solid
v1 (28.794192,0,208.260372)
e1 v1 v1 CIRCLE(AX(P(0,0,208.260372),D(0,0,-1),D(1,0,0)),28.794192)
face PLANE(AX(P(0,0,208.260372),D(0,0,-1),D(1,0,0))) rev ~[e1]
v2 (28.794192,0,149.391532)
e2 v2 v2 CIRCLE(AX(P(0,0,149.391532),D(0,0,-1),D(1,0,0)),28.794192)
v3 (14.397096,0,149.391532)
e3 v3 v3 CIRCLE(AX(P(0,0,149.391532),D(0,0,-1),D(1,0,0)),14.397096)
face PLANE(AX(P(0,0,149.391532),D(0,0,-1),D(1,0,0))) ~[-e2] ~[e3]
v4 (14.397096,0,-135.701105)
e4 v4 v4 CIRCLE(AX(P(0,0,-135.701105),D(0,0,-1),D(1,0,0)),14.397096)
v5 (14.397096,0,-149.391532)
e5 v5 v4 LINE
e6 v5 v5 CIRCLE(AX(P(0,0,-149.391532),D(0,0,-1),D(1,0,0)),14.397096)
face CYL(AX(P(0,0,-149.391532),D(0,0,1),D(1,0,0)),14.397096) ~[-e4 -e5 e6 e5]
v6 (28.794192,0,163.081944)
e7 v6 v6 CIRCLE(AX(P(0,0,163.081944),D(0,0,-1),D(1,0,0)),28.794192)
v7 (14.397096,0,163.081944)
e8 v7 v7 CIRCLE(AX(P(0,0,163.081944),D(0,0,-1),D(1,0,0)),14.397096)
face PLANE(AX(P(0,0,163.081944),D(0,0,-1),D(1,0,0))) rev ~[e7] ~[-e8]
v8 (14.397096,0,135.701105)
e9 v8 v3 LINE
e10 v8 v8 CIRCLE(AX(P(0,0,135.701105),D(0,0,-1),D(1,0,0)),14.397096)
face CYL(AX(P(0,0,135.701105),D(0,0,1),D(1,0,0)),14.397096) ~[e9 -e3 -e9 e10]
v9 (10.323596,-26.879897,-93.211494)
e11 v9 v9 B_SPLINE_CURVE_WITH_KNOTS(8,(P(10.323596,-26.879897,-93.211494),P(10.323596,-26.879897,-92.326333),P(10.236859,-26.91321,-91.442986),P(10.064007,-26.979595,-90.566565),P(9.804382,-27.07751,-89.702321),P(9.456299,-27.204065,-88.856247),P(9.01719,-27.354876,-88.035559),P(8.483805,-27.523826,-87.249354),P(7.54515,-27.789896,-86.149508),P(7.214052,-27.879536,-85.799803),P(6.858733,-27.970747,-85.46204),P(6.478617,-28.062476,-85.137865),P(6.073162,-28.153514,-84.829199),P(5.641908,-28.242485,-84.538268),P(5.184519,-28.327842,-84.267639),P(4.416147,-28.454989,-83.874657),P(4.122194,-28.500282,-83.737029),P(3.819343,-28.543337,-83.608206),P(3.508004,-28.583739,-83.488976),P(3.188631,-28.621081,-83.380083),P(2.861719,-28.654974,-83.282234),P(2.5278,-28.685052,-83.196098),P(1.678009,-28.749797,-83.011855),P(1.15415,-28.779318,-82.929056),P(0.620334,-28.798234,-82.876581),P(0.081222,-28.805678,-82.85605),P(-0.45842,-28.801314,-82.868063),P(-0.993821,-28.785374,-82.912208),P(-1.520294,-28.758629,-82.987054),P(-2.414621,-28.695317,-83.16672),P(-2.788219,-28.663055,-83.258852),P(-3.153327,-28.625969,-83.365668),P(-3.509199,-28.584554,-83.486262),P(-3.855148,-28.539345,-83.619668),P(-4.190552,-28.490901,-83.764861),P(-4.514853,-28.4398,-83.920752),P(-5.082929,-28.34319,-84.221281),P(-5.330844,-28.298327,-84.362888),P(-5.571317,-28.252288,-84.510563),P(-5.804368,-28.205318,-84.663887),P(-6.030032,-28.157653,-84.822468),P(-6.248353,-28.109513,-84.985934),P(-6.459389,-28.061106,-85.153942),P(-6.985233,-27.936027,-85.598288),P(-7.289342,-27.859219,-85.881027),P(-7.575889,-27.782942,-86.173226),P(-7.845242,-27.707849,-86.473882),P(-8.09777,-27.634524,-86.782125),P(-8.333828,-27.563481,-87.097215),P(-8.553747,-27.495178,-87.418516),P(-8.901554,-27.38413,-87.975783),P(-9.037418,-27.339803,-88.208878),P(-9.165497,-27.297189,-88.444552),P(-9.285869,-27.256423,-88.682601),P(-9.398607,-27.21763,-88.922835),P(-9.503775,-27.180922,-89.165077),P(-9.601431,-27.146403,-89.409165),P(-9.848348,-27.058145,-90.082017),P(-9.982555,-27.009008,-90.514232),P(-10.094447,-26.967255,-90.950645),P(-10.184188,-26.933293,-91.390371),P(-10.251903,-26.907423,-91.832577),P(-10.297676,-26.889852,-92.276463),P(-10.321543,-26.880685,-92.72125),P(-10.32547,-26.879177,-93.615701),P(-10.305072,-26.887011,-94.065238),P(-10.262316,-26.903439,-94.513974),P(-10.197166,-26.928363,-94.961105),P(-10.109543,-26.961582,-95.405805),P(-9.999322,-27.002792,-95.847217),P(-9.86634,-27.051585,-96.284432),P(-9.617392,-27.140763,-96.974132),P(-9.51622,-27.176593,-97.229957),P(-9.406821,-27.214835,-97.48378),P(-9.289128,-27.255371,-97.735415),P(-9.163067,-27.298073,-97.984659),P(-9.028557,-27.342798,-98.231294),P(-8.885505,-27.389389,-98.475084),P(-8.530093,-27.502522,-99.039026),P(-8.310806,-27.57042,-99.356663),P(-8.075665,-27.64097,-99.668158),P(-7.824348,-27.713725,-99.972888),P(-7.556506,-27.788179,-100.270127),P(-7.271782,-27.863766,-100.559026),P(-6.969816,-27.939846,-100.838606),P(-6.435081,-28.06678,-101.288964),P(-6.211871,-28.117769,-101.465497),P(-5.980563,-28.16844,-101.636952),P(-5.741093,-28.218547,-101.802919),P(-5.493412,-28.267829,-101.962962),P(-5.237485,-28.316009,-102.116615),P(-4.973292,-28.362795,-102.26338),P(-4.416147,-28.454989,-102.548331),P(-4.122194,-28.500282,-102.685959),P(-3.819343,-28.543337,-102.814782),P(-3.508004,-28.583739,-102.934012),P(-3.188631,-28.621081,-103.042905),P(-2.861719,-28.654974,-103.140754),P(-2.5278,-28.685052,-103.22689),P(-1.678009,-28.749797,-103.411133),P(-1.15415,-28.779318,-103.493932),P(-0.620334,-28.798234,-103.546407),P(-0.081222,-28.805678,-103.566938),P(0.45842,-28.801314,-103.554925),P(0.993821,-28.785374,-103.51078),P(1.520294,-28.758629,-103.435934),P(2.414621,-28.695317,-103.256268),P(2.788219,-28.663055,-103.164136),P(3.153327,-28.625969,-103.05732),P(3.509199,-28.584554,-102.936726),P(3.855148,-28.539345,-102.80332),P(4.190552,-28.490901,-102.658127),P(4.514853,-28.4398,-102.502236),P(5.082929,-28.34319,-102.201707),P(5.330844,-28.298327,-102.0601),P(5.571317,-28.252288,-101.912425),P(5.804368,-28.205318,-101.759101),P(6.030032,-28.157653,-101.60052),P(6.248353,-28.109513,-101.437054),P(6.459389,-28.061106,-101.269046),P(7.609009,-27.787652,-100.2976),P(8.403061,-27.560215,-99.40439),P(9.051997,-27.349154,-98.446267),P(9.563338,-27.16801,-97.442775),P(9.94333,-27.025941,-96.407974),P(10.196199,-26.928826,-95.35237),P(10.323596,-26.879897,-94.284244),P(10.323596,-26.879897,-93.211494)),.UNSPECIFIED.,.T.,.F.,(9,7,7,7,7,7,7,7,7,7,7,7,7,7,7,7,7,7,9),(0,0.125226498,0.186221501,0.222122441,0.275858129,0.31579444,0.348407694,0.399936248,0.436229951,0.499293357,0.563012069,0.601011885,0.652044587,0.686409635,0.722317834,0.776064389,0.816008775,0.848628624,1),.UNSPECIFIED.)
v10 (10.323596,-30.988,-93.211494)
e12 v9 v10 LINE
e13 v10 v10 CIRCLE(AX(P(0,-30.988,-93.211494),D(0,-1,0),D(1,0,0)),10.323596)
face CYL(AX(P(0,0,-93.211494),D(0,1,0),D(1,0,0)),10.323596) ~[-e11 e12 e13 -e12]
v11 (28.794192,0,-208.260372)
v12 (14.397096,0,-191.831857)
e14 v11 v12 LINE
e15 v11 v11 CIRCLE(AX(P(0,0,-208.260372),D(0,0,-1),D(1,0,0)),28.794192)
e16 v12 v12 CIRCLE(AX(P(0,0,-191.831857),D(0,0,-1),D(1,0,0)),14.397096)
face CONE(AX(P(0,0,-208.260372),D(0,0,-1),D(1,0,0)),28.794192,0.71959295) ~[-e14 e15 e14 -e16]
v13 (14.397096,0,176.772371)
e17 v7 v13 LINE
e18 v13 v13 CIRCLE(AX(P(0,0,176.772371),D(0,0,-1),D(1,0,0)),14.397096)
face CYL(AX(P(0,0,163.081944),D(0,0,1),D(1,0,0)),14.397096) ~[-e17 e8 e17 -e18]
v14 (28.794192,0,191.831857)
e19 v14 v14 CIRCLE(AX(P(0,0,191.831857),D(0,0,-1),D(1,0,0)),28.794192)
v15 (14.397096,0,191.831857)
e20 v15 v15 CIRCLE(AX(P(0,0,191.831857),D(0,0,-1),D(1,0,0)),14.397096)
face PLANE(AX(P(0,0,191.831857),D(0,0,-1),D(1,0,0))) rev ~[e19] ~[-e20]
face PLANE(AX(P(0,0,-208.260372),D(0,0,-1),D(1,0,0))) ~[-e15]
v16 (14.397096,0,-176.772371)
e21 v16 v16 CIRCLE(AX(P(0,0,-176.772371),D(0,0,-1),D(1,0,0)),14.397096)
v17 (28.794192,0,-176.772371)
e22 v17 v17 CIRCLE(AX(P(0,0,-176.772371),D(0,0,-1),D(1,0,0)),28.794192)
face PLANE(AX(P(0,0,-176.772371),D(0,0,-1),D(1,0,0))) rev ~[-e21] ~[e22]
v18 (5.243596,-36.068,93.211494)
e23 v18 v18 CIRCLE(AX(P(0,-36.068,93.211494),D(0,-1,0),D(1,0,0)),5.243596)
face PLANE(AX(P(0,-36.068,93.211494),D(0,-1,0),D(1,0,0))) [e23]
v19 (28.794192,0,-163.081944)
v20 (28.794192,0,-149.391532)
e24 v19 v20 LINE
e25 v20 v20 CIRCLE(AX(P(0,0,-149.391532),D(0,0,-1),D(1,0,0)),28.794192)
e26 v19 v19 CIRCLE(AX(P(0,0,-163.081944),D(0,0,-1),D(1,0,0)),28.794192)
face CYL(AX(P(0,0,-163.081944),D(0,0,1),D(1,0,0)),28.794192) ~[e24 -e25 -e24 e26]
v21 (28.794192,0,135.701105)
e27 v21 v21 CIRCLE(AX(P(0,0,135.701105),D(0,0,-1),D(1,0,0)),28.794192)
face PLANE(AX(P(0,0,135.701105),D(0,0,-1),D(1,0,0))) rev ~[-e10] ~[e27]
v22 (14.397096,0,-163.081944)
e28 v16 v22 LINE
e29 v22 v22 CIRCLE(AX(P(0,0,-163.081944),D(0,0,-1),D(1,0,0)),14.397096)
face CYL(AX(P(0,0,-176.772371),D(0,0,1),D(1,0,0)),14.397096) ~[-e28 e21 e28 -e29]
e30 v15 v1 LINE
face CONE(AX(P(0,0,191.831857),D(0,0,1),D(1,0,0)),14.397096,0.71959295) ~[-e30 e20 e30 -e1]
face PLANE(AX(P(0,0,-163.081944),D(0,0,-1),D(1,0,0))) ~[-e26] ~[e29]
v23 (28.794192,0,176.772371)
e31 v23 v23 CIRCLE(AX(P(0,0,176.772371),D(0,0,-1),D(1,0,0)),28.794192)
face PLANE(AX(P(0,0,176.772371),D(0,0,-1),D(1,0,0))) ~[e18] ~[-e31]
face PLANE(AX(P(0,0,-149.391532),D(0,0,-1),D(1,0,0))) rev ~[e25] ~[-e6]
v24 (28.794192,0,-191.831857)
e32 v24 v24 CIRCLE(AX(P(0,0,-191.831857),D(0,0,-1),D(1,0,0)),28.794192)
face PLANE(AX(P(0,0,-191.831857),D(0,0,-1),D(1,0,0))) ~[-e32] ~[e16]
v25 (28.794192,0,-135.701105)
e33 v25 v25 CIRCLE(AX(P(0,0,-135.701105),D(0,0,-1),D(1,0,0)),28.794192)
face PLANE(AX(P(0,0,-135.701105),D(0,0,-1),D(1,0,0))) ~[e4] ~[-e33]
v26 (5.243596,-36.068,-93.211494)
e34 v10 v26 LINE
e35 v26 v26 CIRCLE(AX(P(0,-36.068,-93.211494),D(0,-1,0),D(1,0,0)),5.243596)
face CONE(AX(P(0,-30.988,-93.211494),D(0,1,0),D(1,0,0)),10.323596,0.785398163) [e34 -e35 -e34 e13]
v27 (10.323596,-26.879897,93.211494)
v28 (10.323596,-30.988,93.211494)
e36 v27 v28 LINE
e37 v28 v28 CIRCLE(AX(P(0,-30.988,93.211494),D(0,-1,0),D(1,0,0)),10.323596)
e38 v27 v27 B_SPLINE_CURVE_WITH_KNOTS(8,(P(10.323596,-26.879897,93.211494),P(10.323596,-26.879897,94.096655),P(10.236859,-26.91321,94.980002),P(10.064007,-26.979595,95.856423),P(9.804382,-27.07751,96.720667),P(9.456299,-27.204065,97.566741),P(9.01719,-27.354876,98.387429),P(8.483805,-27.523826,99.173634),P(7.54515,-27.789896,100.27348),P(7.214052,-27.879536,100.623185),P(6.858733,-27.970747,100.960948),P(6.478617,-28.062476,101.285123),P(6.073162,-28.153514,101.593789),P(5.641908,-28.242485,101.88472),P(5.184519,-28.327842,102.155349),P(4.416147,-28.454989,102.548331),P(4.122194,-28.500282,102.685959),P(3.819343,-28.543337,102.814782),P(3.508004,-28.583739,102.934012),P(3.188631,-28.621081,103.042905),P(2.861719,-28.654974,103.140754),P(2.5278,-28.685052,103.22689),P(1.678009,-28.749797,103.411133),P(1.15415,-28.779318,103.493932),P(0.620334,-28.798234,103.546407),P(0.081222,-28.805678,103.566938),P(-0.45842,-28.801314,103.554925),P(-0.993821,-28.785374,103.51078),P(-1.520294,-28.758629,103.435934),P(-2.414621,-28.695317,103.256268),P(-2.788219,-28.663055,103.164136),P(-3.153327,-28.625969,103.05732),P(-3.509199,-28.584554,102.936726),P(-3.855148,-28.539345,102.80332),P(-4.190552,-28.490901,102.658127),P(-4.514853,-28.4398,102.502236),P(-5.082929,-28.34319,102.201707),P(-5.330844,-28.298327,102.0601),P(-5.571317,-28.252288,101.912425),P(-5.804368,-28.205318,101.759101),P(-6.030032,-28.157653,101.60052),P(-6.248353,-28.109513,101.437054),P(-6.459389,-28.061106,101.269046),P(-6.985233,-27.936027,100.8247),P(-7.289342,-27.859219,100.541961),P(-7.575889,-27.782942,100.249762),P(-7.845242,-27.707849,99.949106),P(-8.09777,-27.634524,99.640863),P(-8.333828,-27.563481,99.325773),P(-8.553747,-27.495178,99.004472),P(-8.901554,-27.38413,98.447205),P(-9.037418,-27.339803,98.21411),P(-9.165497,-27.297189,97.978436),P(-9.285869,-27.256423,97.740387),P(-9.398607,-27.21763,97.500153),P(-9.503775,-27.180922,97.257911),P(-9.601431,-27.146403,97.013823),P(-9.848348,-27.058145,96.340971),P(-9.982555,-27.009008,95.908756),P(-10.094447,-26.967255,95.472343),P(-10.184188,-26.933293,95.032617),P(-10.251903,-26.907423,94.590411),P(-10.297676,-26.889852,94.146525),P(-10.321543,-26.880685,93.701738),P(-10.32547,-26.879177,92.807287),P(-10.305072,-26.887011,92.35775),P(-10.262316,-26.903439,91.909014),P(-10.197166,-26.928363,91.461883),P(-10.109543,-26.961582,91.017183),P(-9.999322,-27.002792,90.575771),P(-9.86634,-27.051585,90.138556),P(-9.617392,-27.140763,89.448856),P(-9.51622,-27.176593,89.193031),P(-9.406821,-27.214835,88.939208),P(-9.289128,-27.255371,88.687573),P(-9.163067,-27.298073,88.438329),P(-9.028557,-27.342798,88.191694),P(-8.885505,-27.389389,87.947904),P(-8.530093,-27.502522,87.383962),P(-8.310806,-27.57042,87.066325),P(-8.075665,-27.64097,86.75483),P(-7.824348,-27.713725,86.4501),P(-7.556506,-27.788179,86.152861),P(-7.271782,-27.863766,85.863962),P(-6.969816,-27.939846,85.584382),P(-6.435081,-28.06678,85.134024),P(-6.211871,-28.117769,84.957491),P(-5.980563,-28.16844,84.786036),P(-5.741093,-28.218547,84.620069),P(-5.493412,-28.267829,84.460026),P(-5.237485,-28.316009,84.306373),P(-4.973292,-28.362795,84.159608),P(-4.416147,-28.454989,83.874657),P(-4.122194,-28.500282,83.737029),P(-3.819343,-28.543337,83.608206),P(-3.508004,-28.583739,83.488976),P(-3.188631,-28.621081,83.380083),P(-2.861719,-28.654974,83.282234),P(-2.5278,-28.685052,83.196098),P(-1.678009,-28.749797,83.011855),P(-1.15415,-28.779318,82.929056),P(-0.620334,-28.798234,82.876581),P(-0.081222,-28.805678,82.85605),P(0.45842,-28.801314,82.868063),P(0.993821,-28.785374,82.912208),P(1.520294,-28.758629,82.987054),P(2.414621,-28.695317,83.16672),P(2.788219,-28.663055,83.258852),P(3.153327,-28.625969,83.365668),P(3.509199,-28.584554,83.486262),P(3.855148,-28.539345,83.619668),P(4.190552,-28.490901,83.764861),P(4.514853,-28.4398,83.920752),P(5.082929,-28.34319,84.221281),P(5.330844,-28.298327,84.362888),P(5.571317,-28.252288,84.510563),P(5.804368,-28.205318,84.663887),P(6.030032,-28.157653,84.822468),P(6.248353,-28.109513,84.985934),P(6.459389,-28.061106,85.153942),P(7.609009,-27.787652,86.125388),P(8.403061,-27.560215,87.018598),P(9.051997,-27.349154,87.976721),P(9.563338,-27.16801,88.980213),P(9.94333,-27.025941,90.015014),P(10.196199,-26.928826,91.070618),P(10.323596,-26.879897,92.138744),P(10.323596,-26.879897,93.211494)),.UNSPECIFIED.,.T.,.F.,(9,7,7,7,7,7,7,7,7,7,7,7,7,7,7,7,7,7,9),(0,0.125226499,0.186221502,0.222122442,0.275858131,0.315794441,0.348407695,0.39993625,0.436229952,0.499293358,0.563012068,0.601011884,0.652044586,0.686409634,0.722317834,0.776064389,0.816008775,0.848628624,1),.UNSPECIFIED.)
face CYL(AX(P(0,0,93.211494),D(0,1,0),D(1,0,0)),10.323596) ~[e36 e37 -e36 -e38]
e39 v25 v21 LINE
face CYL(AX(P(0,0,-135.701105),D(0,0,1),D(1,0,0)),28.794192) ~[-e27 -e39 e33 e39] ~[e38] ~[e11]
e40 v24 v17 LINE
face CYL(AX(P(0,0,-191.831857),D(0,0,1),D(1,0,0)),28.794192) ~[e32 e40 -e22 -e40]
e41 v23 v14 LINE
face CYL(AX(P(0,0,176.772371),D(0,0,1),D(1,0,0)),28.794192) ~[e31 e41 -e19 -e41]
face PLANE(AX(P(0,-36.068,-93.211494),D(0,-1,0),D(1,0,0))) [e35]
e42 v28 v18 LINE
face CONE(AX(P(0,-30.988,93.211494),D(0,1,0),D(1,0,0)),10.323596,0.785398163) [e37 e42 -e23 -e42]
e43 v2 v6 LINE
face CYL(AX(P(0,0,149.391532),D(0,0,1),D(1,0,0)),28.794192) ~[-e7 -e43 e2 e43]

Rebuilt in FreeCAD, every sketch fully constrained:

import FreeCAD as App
import Part
import Sketcher
from FreeCAD import Vector
Q = App.Units.Quantity


def edges_at(feature, points):
    """Names of the edges that pass closest to the given points."""
    edges = feature.Shape.Edges
    near = lambda p: min(range(len(edges)), key=lambda i: edges[i].distToShape(Part.Vertex(*p))[0])
    return sorted({f"Edge{near(p) + 1}" for p in points})

doc = App.newDocument("Part")
body = doc.addObject("PartDesign::Body", "Body")

# Sketch on XZ plane
sketch1 = body.newObject("Sketcher::SketchObject", "Sketch")
sketch1.AttachmentSupport = (doc.getObject("XZ_Plane"), [""])
sketch1.MapMode = "FlatFace"
sketch1.addGeometry(Part.LineSegment(Vector(0, 208.260372, 0), Vector(0, -208.260372, 0)), False)
sketch1.addGeometry(Part.LineSegment(Vector(0, -208.260372, 0), Vector(28.794192, -208.260372, 0)), False)
sketch1.addGeometry(Part.LineSegment(Vector(28.794192, -208.260372, 0), Vector(14.397096, -191.831857, 0)), False)
sketch1.addGeometry(Part.LineSegment(Vector(14.397096, -191.831857, 0), Vector(28.794192, -191.831857, 0)), False)
sketch1.addGeometry(Part.LineSegment(Vector(28.794192, -191.831857, 0), Vector(28.794192, -176.772371, 0)), False)
sketch1.addGeometry(Part.LineSegment(Vector(28.794192, -176.772371, 0), Vector(14.397096, -176.772371, 0)), False)
sketch1.addGeometry(Part.LineSegment(Vector(14.397096, -176.772371, 0), Vector(14.397096, -163.081944, 0)), False)
sketch1.addGeometry(Part.LineSegment(Vector(14.397096, -163.081944, 0), Vector(28.794192, -163.081944, 0)), False)
sketch1.addGeometry(Part.LineSegment(Vector(28.794192, -163.081944, 0), Vector(28.794192, -149.391532, 0)), False)
sketch1.addGeometry(Part.LineSegment(Vector(28.794192, -149.391532, 0), Vector(14.397096, -149.391532, 0)), False)
sketch1.addGeometry(Part.LineSegment(Vector(14.397096, -149.391532, 0), Vector(14.397096, -135.701105, 0)), False)
sketch1.addGeometry(Part.LineSegment(Vector(14.397096, -135.701105, 0), Vector(28.794192, -135.701105, 0)), False)
sketch1.addGeometry(Part.LineSegment(Vector(28.794192, -135.701105, 0), Vector(28.794192, 135.701105, 0)), False)
sketch1.addGeometry(Part.LineSegment(Vector(28.794192, 135.701105, 0), Vector(14.397096, 135.701105, 0)), False)
sketch1.addGeometry(Part.LineSegment(Vector(14.397096, 135.701105, 0), Vector(14.397096, 149.391532, 0)), False)
sketch1.addGeometry(Part.LineSegment(Vector(14.397096, 149.391532, 0), Vector(28.794192, 149.391532, 0)), False)
sketch1.addGeometry(Part.LineSegment(Vector(28.794192, 149.391532, 0), Vector(28.794192, 163.081944, 0)), False)
sketch1.addGeometry(Part.LineSegment(Vector(28.794192, 163.081944, 0), Vector(14.397096, 163.081944, 0)), False)
sketch1.addGeometry(Part.LineSegment(Vector(14.397096, 163.081944, 0), Vector(14.397096, 176.772371, 0)), False)
sketch1.addGeometry(Part.LineSegment(Vector(14.397096, 176.772371, 0), Vector(28.794192, 176.772371, 0)), False)
sketch1.addGeometry(Part.LineSegment(Vector(28.794192, 176.772371, 0), Vector(28.794192, 191.831857, 0)), False)
sketch1.addGeometry(Part.LineSegment(Vector(28.794192, 191.831857, 0), Vector(14.397096, 191.831857, 0)), False)
sketch1.addGeometry(Part.LineSegment(Vector(14.397096, 191.831857, 0), Vector(28.794192, 208.260372, 0)), False)
sketch1.addGeometry(Part.LineSegment(Vector(28.794192, 208.260372, 0), Vector(0, 208.260372, 0)), False)
sketch1.addConstraint(Sketcher.Constraint("Coincident", 0, 2, 1, 1))
sketch1.addConstraint(Sketcher.Constraint("Coincident", 1, 2, 2, 1))
sketch1.addConstraint(Sketcher.Constraint("Coincident", 2, 2, 3, 1))
sketch1.addConstraint(Sketcher.Constraint("Coincident", 3, 2, 4, 1))
sketch1.addConstraint(Sketcher.Constraint("Coincident", 4, 2, 5, 1))
sketch1.addConstraint(Sketcher.Constraint("Coincident", 5, 2, 6, 1))
sketch1.addConstraint(Sketcher.Constraint("Coincident", 6, 2, 7, 1))
sketch1.addConstraint(Sketcher.Constraint("Coincident", 7, 2, 8, 1))
sketch1.addConstraint(Sketcher.Constraint("Coincident", 8, 2, 9, 1))
sketch1.addConstraint(Sketcher.Constraint("Coincident", 9, 2, 10, 1))
sketch1.addConstraint(Sketcher.Constraint("Coincident", 10, 2, 11, 1))
sketch1.addConstraint(Sketcher.Constraint("Coincident", 11, 2, 12, 1))
sketch1.addConstraint(Sketcher.Constraint("Coincident", 12, 2, 13, 1))
sketch1.addConstraint(Sketcher.Constraint("Coincident", 13, 2, 14, 1))
sketch1.addConstraint(Sketcher.Constraint("Coincident", 14, 2, 15, 1))
sketch1.addConstraint(Sketcher.Constraint("Coincident", 15, 2, 16, 1))
sketch1.addConstraint(Sketcher.Constraint("Coincident", 16, 2, 17, 1))
sketch1.addConstraint(Sketcher.Constraint("Coincident", 17, 2, 18, 1))
sketch1.addConstraint(Sketcher.Constraint("Coincident", 18, 2, 19, 1))
sketch1.addConstraint(Sketcher.Constraint("Coincident", 19, 2, 20, 1))
sketch1.addConstraint(Sketcher.Constraint("Coincident", 20, 2, 21, 1))
sketch1.addConstraint(Sketcher.Constraint("Coincident", 21, 2, 22, 1))
sketch1.addConstraint(Sketcher.Constraint("Coincident", 22, 2, 23, 1))
sketch1.addConstraint(Sketcher.Constraint("Coincident", 23, 2, 0, 1))
sketch1.addConstraint(Sketcher.Constraint("Vertical", 0))
sketch1.addConstraint(Sketcher.Constraint("Horizontal", 1))
sketch1.addConstraint(Sketcher.Constraint("Horizontal", 3))
sketch1.addConstraint(Sketcher.Constraint("Vertical", 4))
sketch1.addConstraint(Sketcher.Constraint("Horizontal", 5))
sketch1.addConstraint(Sketcher.Constraint("Vertical", 6))
sketch1.addConstraint(Sketcher.Constraint("Horizontal", 7))
sketch1.addConstraint(Sketcher.Constraint("Vertical", 8))
sketch1.addConstraint(Sketcher.Constraint("Horizontal", 9))
sketch1.addConstraint(Sketcher.Constraint("Vertical", 10))
sketch1.addConstraint(Sketcher.Constraint("Horizontal", 11))
sketch1.addConstraint(Sketcher.Constraint("Vertical", 12))
sketch1.addConstraint(Sketcher.Constraint("Horizontal", 13))
sketch1.addConstraint(Sketcher.Constraint("Vertical", 14))
sketch1.addConstraint(Sketcher.Constraint("Horizontal", 15))
sketch1.addConstraint(Sketcher.Constraint("Vertical", 16))
sketch1.addConstraint(Sketcher.Constraint("Horizontal", 17))
sketch1.addConstraint(Sketcher.Constraint("Vertical", 18))
sketch1.addConstraint(Sketcher.Constraint("Horizontal", 19))
sketch1.addConstraint(Sketcher.Constraint("Vertical", 20))
sketch1.addConstraint(Sketcher.Constraint("Horizontal", 21))
sketch1.addConstraint(Sketcher.Constraint("Horizontal", 23))
sketch1.addConstraint(Sketcher.Constraint("Symmetric", 0, 2, 23, 2, -1, 1))
sketch1.addConstraint(Sketcher.Constraint("Symmetric", 10, 2, 13, 2, -1))
sketch1.addConstraint(Sketcher.Constraint("Symmetric", 8, 2, 15, 2, -1))
sketch1.addConstraint(Sketcher.Constraint("Symmetric", 6, 2, 17, 2, -1))
sketch1.addConstraint(Sketcher.Constraint("Symmetric", 4, 2, 19, 2, -1))
sketch1.addConstraint(Sketcher.Constraint("Symmetric", 2, 2, 21, 2, -1))
sketch1.addConstraint(Sketcher.Constraint("Vertical", 1, 2, 3, 2))
sketch1.addConstraint(Sketcher.Constraint("Vertical", 2, 2, 5, 2))
sketch1.addConstraint(Sketcher.Constraint("Vertical", 4, 2, 7, 2))
sketch1.addConstraint(Sketcher.Constraint("Vertical", 6, 2, 9, 2))
sketch1.addConstraint(Sketcher.Constraint("Vertical", 8, 2, 11, 2))
sketch1.addConstraint(Sketcher.Constraint("Vertical", 20, 2, 22, 2))
sketch1.addConstraint(Sketcher.Constraint("Equal", 6, 10))
sketch1.addConstraint(Sketcher.Constraint("DistanceX", 1, 1, 1, 2, Q("28.794192 mm")))
sketch1.addConstraint(Sketcher.Constraint("DistanceY", 8, 1, 8, 2, Q("13.690412 mm")))
sketch1.addConstraint(Sketcher.Constraint("DistanceY", 12, 1, 12, 2, Q("271.40221 mm")))
sketch1.addConstraint(Sketcher.Constraint("DistanceY", 1, 2, 4, 2, Q("31.488001 mm")))
sketch1.addConstraint(Sketcher.Constraint("DistanceX", 3, 1, 3, 2, Q("14.397096 mm")))
sketch1.addConstraint(Sketcher.Constraint("DistanceY", 0, 2, 0, 1, Q("416.520744 mm")))
sketch1.addConstraint(Sketcher.Constraint("DistanceY", 4, 1, 4, 2, Q("15.059486 mm")))
revolution = body.newObject("PartDesign::Revolution", "Revolution")
revolution.Profile = sketch1
revolution.ReferenceAxis = (sketch1, ["V_Axis"])
revolution.Angle = 360

# Sketch on XZ plane
sketch2 = body.newObject("Sketcher::SketchObject", "Sketch001")
sketch2.AttachmentSupport = (doc.getObject("XZ_Plane"), [""])
sketch2.MapMode = "FlatFace"
sketch2.addGeometry(Part.Circle(Vector(0, 93.211494, 0), Vector(0, 0, 1), 10.323596), False)
sketch2.addGeometry(Part.Circle(Vector(0, -93.211494, 0), Vector(0, 0, 1), 10.323596), False)
sketch2.addConstraint(Sketcher.Constraint("Equal", 0, 1))
sketch2.addConstraint(Sketcher.Constraint("Symmetric", 0, 3, 1, 3, -1, 1))
sketch2.addConstraint(Sketcher.Constraint("PointOnObject", 0, 3, -2))
sketch2.addConstraint(Sketcher.Constraint("Diameter", 0, Q("20.647192 mm")))
sketch2.addConstraint(Sketcher.Constraint("DistanceY", 1, 3, 0, 3, Q("186.422988 mm")))
pad1 = body.newObject("PartDesign::Pad", "Pad")
pad1.Profile = sketch2
pad1.Length = Q("1.42 in")
doc.recompute()

chamfer = body.newObject("PartDesign::Chamfer", "Chamfer")
chamfer.Base = (pad1, edges_at(pad1, [(-10.324, -36.068, 93.211), (-10.324, -36.068, -93.211)]))
chamfer.Size = Q("0.2 in")

doc.recompute()
